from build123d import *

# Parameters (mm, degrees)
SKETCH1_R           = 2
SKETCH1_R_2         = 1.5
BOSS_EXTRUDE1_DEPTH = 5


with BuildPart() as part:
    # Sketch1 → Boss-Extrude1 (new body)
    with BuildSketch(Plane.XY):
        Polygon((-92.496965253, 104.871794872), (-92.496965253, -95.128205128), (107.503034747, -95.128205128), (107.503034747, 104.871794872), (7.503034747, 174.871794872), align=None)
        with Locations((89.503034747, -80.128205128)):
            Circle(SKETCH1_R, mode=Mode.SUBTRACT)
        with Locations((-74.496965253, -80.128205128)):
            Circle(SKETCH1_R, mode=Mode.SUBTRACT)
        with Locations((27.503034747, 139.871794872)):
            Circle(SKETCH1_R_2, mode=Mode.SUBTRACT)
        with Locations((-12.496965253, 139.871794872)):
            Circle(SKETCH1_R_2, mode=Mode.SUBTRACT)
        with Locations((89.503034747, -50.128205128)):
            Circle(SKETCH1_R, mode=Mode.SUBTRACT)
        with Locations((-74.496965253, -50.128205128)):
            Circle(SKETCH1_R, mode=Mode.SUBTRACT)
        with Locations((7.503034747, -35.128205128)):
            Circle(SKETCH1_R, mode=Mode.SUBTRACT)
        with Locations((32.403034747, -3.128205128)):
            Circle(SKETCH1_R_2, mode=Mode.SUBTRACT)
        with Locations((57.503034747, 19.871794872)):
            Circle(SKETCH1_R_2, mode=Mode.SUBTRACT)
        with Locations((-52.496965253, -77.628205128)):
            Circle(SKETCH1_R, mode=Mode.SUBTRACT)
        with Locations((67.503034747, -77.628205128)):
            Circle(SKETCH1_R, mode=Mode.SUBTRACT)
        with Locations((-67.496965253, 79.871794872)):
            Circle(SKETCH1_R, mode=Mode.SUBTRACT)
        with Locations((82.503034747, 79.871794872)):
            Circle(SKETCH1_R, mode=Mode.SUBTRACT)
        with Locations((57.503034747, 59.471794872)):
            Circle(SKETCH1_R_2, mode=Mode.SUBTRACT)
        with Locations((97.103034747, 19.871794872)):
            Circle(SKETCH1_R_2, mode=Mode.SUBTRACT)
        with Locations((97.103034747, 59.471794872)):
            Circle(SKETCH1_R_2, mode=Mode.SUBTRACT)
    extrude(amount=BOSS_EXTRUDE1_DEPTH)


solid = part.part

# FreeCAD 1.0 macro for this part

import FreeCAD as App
import Part
import Sketcher


def add_polygon(sketch, points):
    """Adds a closed chain of lines whose ends are joined by coincident constraints."""
    first, n = sketch.GeometryCount, len(points)
    for a, b in zip(points, points[1:] + points[:1]):
        sketch.addGeometry(Part.LineSegment(App.Vector(*a, 0), App.Vector(*b, 0)), False)
    for i in range(n):
        sketch.addConstraint(Sketcher.Constraint("Coincident", first + i, 2, first + (i + 1) % n, 1))

doc = App.newDocument("Part")
params = doc.addObject("Spreadsheet::Sheet", "Params")
for row, (alias, value) in enumerate([
    ("sketch1_diameter", "4 mm"),
    ("sketch1_diameter2", "3 mm"),
    ("sketch1_width", "200 mm"),
    ("pad1_length", "5 mm"),
], start=1):
    params.set(f"A{row}", alias)
    params.set(f"B{row}", "=" + value)
    params.setAlias(f"B{row}", alias)

body = doc.addObject("PartDesign::Body", "Body")

# Sketch on XY plane
sketch1 = body.newObject("Sketcher::SketchObject", "Sketch")
sketch1.AttachmentSupport = (doc.getObject("XY_Plane"), [""])
sketch1.MapMode = "FlatFace"
add_polygon(sketch1, [(-92.5, 104.9), (-92.5, -95.1), (107.5, -95.1), (107.5, 104.9), (7.5, 174.9)])  # lines 0-4
sketch1.addGeometry(Part.Circle(App.Vector(-74.5, -80.1, 0), App.Vector(0, 0, 1), 2), False)  # 5
sketch1.addGeometry(Part.Circle(App.Vector(-52.5, -77.6, 0), App.Vector(0, 0, 1), 2), False)  # 6
sketch1.addGeometry(Part.Circle(App.Vector(-74.5, -50.1, 0), App.Vector(0, 0, 1), 2), False)  # 7
sketch1.addGeometry(Part.Circle(App.Vector(7.5, -35.1, 0), App.Vector(0, 0, 1), 2), False)  # 8
sketch1.addGeometry(Part.Circle(App.Vector(67.5, -77.6, 0), App.Vector(0, 0, 1), 2), False)  # 9
sketch1.addGeometry(Part.Circle(App.Vector(89.5, -80.1, 0), App.Vector(0, 0, 1), 2), False)  # 10
sketch1.addGeometry(Part.Circle(App.Vector(89.5, -50.1, 0), App.Vector(0, 0, 1), 2), False)  # 11
sketch1.addGeometry(Part.Circle(App.Vector(32.4, -3.1, 0), App.Vector(0, 0, 1), 1.5), False)  # 12
sketch1.addGeometry(Part.Circle(App.Vector(57.5, 19.9, 0), App.Vector(0, 0, 1), 1.5), False)  # 13
sketch1.addGeometry(Part.Circle(App.Vector(97.1, 19.9, 0), App.Vector(0, 0, 1), 1.5), False)  # 14
sketch1.addGeometry(Part.Circle(App.Vector(-67.5, 79.9, 0), App.Vector(0, 0, 1), 2), False)  # 15
sketch1.addGeometry(Part.Circle(App.Vector(-12.5, 139.9, 0), App.Vector(0, 0, 1), 1.5), False)  # 16
sketch1.addGeometry(Part.Circle(App.Vector(57.5, 59.5, 0), App.Vector(0, 0, 1), 1.5), False)  # 17
sketch1.addGeometry(Part.Circle(App.Vector(97.1, 59.5, 0), App.Vector(0, 0, 1), 1.5), False)  # 18
sketch1.addGeometry(Part.Circle(App.Vector(82.5, 79.9, 0), App.Vector(0, 0, 1), 2), False)  # 19
sketch1.addGeometry(Part.Circle(App.Vector(27.5, 139.9, 0), App.Vector(0, 0, 1), 1.5), False)  # 20
sketch1.addConstraint(Sketcher.Constraint("Vertical", 0))
sketch1.addConstraint(Sketcher.Constraint("Horizontal", 1))
sketch1.addConstraint(Sketcher.Constraint("Vertical", 2))
sketch1.addConstraint(Sketcher.Constraint("Equal", 5, 6))
sketch1.addConstraint(Sketcher.Constraint("Equal", 6, 7))
sketch1.addConstraint(Sketcher.Constraint("Equal", 7, 8))
sketch1.addConstraint(Sketcher.Constraint("Equal", 8, 9))
sketch1.addConstraint(Sketcher.Constraint("Equal", 9, 10))
sketch1.addConstraint(Sketcher.Constraint("Equal", 10, 11))
sketch1.addConstraint(Sketcher.Constraint("Equal", 12, 13))
sketch1.addConstraint(Sketcher.Constraint("Equal", 13, 14))
sketch1.addConstraint(Sketcher.Constraint("Equal", 11, 15))
sketch1.addConstraint(Sketcher.Constraint("Equal", 14, 16))
sketch1.addConstraint(Sketcher.Constraint("Equal", 16, 17))
sketch1.addConstraint(Sketcher.Constraint("Equal", 17, 18))
sketch1.addConstraint(Sketcher.Constraint("Equal", 15, 19))
sketch1.addConstraint(Sketcher.Constraint("Equal", 18, 20))
sketch1.addConstraint(Sketcher.Constraint("Horizontal", 6, 3, 9, 3))
sketch1.addConstraint(Sketcher.Constraint("Horizontal", 5, 3, 10, 3))
sketch1.addConstraint(Sketcher.Constraint("Horizontal", 7, 3, 11, 3))
sketch1.addConstraint(Sketcher.Constraint("Horizontal", 13, 3, 14, 3))
sketch1.addConstraint(Sketcher.Constraint("Horizontal", 17, 3, 18, 3))
sketch1.addConstraint(Sketcher.Constraint("Horizontal", 15, 3, 19, 3))
sketch1.addConstraint(Sketcher.Constraint("Horizontal", 16, 3, 20, 3))
sketch1.addConstraint(Sketcher.Constraint("Horizontal", 2, 2, 4, 2))
sketch1.addConstraint(Sketcher.Constraint("Vertical", 5, 3, 7, 3))
sketch1.addConstraint(Sketcher.Constraint("Vertical", 10, 3, 11, 3))
sketch1.addConstraint(Sketcher.Constraint("Vertical", 13, 3, 17, 3))
sketch1.addConstraint(Sketcher.Constraint("Vertical", 14, 3, 18, 3))
sketch1.addConstraint(Sketcher.Constraint("Vertical", 8, 3, 3, 2))
sketch1.addConstraint(Sketcher.Constraint("Equal", 1, 0))
sketch1.addConstraint(Sketcher.Constraint("Equal", 3, 4))
sketch1.addConstraint(Sketcher.Constraint("Diameter", 5, 4.0))
sketch1.addConstraint(Sketcher.Constraint("Diameter", 12, 3.0))
sketch1.addConstraint(Sketcher.Constraint("DistanceX", 1, 1, 1, 2, 200.0))
sketch1.addConstraint(Sketcher.Constraint("DistanceX", 5, 3, 6, 3, 22.0))
sketch1.addConstraint(Sketcher.Constraint("DistanceY", 5, 3, 7, 3, 30.0))
sketch1.addConstraint(Sketcher.Constraint("DistanceX", 6, 3, 8, 3, 60.0))
sketch1.addConstraint(Sketcher.Constraint("DistanceY", 7, 3, 8, 3, 15.0))
sketch1.addConstraint(Sketcher.Constraint("DistanceX", 8, 3, 9, 3, 60.0))
sketch1.addConstraint(Sketcher.Constraint("DistanceX", 9, 3, 10, 3, 22.0))
sketch1.addConstraint(Sketcher.Constraint("DistanceY", 8, 3, 12, 3, 32.0))
sketch1.addConstraint(Sketcher.Constraint("DistanceY", 12, 3, 13, 3, 23.0))
sketch1.addConstraint(Sketcher.Constraint("DistanceX", 8, 3, 13, 3, 50.0))
sketch1.addConstraint(Sketcher.Constraint("DistanceY", 12, 3, 15, 3, 83.0))
sketch1.addConstraint(Sketcher.Constraint("DistanceX", 7, 3, 15, 3, 7.0))
sketch1.addConstraint(Sketcher.Constraint("DistanceX", 15, 3, 16, 3, 55.0))
sketch1.addConstraint(Sketcher.Constraint("DistanceY", 15, 3, 16, 3, 60.0))
sketch1.addConstraint(Sketcher.Constraint("DistanceX", 17, 3, 19, 3, 25.0))
sketch1.addConstraint(Sketcher.Constraint("DistanceX", 16, 3, 20, 3, 40.0))
sketch1.addConstraint(Sketcher.Constraint("DistanceY", 0, 2, 5, 3, 15.0))
sketch1.addConstraint(Sketcher.Constraint("DistanceY", 16, 3, 3, 2, 35.0))
sketch1.addConstraint(Sketcher.Constraint("DistanceY", 5, 3, 6, 3, 2.5))
sketch1.addConstraint(Sketcher.Constraint("DistanceX", 8, 3, 12, 3, 24.9))
sketch1.addConstraint(Sketcher.Constraint("DistanceX", 13, 3, 14, 3, 39.6))
sketch1.addConstraint(Sketcher.Constraint("DistanceY", 13, 3, 17, 3, 39.6))
sketch1.addConstraint(Sketcher.Constraint("DistanceX", 5, 3, -1, 1, 74.496965))
sketch1.addConstraint(Sketcher.Constraint("DistanceY", 5, 3, -1, 1, 80.128205))
sketch1.setExpression("Constraints[37]", "Params.sketch1_diameter")
sketch1.setExpression("Constraints[38]", "Params.sketch1_diameter2")
sketch1.setExpression("Constraints[39]", "Params.sketch1_width")
pad1 = body.newObject("PartDesign::Pad", "Pad")
pad1.Profile = sketch1
pad1.setExpression("Length", "Params.pad1_length")

doc.recompute()
